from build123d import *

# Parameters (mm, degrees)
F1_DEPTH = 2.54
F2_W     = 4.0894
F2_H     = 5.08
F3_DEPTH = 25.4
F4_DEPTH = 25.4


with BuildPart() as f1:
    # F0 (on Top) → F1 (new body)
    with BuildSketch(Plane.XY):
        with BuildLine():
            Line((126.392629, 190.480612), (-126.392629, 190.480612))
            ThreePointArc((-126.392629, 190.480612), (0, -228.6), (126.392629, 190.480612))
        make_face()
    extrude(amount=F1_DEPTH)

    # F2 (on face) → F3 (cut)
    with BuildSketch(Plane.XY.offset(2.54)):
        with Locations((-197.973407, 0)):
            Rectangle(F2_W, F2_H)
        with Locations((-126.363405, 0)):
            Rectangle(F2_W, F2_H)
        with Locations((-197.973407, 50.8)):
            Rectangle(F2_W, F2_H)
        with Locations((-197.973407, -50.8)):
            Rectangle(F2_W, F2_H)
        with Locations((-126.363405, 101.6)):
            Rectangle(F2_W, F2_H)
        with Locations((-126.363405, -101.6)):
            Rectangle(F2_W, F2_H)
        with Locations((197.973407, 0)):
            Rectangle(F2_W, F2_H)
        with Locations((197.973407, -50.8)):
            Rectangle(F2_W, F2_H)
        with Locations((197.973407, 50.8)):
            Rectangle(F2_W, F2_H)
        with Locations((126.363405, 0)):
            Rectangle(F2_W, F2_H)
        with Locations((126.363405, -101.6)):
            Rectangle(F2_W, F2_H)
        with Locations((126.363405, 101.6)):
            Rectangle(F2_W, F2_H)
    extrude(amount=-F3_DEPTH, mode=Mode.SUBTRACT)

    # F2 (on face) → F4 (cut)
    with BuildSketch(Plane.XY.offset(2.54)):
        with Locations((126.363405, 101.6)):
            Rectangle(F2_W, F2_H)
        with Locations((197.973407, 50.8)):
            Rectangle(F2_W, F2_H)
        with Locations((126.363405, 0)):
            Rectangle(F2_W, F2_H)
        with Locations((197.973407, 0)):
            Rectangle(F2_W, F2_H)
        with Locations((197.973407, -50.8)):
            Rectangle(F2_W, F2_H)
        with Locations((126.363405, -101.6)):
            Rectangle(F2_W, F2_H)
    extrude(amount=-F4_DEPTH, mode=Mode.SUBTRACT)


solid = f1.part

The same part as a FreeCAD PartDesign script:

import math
import FreeCAD as App
import Part
import Sketcher
Q = App.Units.Quantity

doc = App.newDocument("Part")
body = doc.addObject("PartDesign::Body", "Body")

# Sketch on XY plane
sketch1 = doc.addObject("Sketcher::SketchObject", "Sketch")
body.addObject(sketch1)
sketch1.AttachmentSupport = (doc.XY_Plane, [""])
sketch1.MapMode = "FlatFace"
sketch1.addGeometry([
    Part.LineSegment(App.Vector(126, 190, 0), App.Vector(-126, 190, 0)),
    Part.ArcOfCircle(Part.Circle(App.Vector(0, 0, 0), App.Vector(0, 0, 1), 229), math.radians(124), math.radians(416)),
], False)
sketch1.addConstraint([
    Sketcher.Constraint("Coincident", 0, 1, 1, 2),
    Sketcher.Constraint("Coincident", 1, 1, 0, 2),
    Sketcher.Constraint("Horizontal", 0),
    Sketcher.Constraint("Coincident", 1, 3, -1, 1),
    Sketcher.Constraint("Radius", 1, Q("9 in")),
    Sketcher.Constraint("DistanceX", 0, 2, 0, 1, 252.785258),
])
pad1 = doc.addObject("PartDesign::Pad", "Pad")
body.addObject(pad1)
pad1.Profile = sketch1
pad1.Length = Q("0.1 in")

# Sketch on XY plane
sketch2 = doc.addObject("Sketcher::SketchObject", "Sketch001")
body.addObject(sketch2)
sketch2.AttachmentSupport = (doc.XY_Plane, [""])
sketch2.MapMode = "FlatFace"
sketch2.AttachmentOffset = App.Placement(App.Vector(0, 0, 0.1 * 25.4), App.Rotation())
sketch2.addGeometry([
    Part.LineSegment(App.Vector(-200, 2.5, 0), App.Vector(-200, -2.5, 0)),  # 0
    Part.LineSegment(App.Vector(-200, -2.5, 0), App.Vector(-195.9, -2.5, 0)),  # 1
    Part.LineSegment(App.Vector(-195.9, -2.5, 0), App.Vector(-195.9, 2.5, 0)),  # 2
    Part.LineSegment(App.Vector(-195.9, 2.5, 0), App.Vector(-200, 2.5, 0)),  # 3
    Part.LineSegment(App.Vector(-128.4, 2.5, 0), App.Vector(-128.4, -2.5, 0)),  # 4
    Part.LineSegment(App.Vector(-128.4, -2.5, 0), App.Vector(-124.3, -2.5, 0)),  # 5
    Part.LineSegment(App.Vector(-124.3, -2.5, 0), App.Vector(-124.3, 2.5, 0)),  # 6
    Part.LineSegment(App.Vector(-124.3, 2.5, 0), App.Vector(-128.4, 2.5, 0)),  # 7
    Part.LineSegment(App.Vector(-200, 53.3, 0), App.Vector(-200, 48.3, 0)),  # 8
    Part.LineSegment(App.Vector(-200, 48.3, 0), App.Vector(-195.9, 48.3, 0)),  # 9
    Part.LineSegment(App.Vector(-195.9, 48.3, 0), App.Vector(-195.9, 53.3, 0)),  # 10
    Part.LineSegment(App.Vector(-195.9, 53.3, 0), App.Vector(-200, 53.3, 0)),  # 11
    Part.LineSegment(App.Vector(-200, -48.3, 0), App.Vector(-200, -53.3, 0)),  # 12
    Part.LineSegment(App.Vector(-200, -53.3, 0), App.Vector(-195.9, -53.3, 0)),  # 13
    Part.LineSegment(App.Vector(-195.9, -53.3, 0), App.Vector(-195.9, -48.3, 0)),  # 14
    Part.LineSegment(App.Vector(-195.9, -48.3, 0), App.Vector(-200, -48.3, 0)),  # 15
    Part.LineSegment(App.Vector(-128.4, 104.1, 0), App.Vector(-128.4, 99.1, 0)),  # 16
    Part.LineSegment(App.Vector(-128.4, 99.1, 0), App.Vector(-124.3, 99.1, 0)),  # 17
    Part.LineSegment(App.Vector(-124.3, 99.1, 0), App.Vector(-124.3, 104.1, 0)),  # 18
    Part.LineSegment(App.Vector(-124.3, 104.1, 0), App.Vector(-128.4, 104.1, 0)),  # 19
    Part.LineSegment(App.Vector(-128.4, -99.1, 0), App.Vector(-128.4, -104.1, 0)),  # 20
    Part.LineSegment(App.Vector(-128.4, -104.1, 0), App.Vector(-124.3, -104.1, 0)),  # 21
    Part.LineSegment(App.Vector(-124.3, -104.1, 0), App.Vector(-124.3, -99.1, 0)),  # 22
    Part.LineSegment(App.Vector(-124.3, -99.1, 0), App.Vector(-128.4, -99.1, 0)),  # 23
    Part.LineSegment(App.Vector(195.9, 2.5, 0), App.Vector(195.9, -2.5, 0)),  # 24
    Part.LineSegment(App.Vector(195.9, -2.5, 0), App.Vector(200, -2.5, 0)),  # 25
    Part.LineSegment(App.Vector(200, -2.5, 0), App.Vector(200, 2.5, 0)),  # 26
    Part.LineSegment(App.Vector(200, 2.5, 0), App.Vector(195.9, 2.5, 0)),  # 27
    Part.LineSegment(App.Vector(195.9, -48.3, 0), App.Vector(195.9, -53.3, 0)),  # 28
    Part.LineSegment(App.Vector(195.9, -53.3, 0), App.Vector(200, -53.3, 0)),  # 29
    Part.LineSegment(App.Vector(200, -53.3, 0), App.Vector(200, -48.3, 0)),  # 30
    Part.LineSegment(App.Vector(200, -48.3, 0), App.Vector(195.9, -48.3, 0)),  # 31
    Part.LineSegment(App.Vector(195.9, 53.3, 0), App.Vector(195.9, 48.3, 0)),  # 32
    Part.LineSegment(App.Vector(195.9, 48.3, 0), App.Vector(200, 48.3, 0)),  # 33
    Part.LineSegment(App.Vector(200, 48.3, 0), App.Vector(200, 53.3, 0)),  # 34
    Part.LineSegment(App.Vector(200, 53.3, 0), App.Vector(195.9, 53.3, 0)),  # 35
    Part.LineSegment(App.Vector(124.3, 2.5, 0), App.Vector(124.3, -2.5, 0)),  # 36
    Part.LineSegment(App.Vector(124.3, -2.5, 0), App.Vector(128.4, -2.5, 0)),  # 37
    Part.LineSegment(App.Vector(128.4, -2.5, 0), App.Vector(128.4, 2.5, 0)),  # 38
    Part.LineSegment(App.Vector(128.4, 2.5, 0), App.Vector(124.3, 2.5, 0)),  # 39
    Part.LineSegment(App.Vector(124.3, -99.1, 0), App.Vector(124.3, -104.1, 0)),  # 40
    Part.LineSegment(App.Vector(124.3, -104.1, 0), App.Vector(128.4, -104.1, 0)),  # 41
    Part.LineSegment(App.Vector(128.4, -104.1, 0), App.Vector(128.4, -99.1, 0)),  # 42
    Part.LineSegment(App.Vector(128.4, -99.1, 0), App.Vector(124.3, -99.1, 0)),  # 43
    Part.LineSegment(App.Vector(124.3, 104.1, 0), App.Vector(124.3, 99.1, 0)),  # 44
    Part.LineSegment(App.Vector(124.3, 99.1, 0), App.Vector(128.4, 99.1, 0)),  # 45
    Part.LineSegment(App.Vector(128.4, 99.1, 0), App.Vector(128.4, 104.1, 0)),  # 46
    Part.LineSegment(App.Vector(128.4, 104.1, 0), App.Vector(124.3, 104.1, 0)),  # 47
], False)
sketch2.addConstraint([
    Sketcher.Constraint("Coincident", 0, 2, 1, 1),
    Sketcher.Constraint("Coincident", 1, 2, 2, 1),
    Sketcher.Constraint("Coincident", 2, 2, 3, 1),
    Sketcher.Constraint("Coincident", 3, 2, 0, 1),
    Sketcher.Constraint("Coincident", 4, 2, 5, 1),
    Sketcher.Constraint("Coincident", 5, 2, 6, 1),
    Sketcher.Constraint("Coincident", 6, 2, 7, 1),
    Sketcher.Constraint("Coincident", 7, 2, 4, 1),
    Sketcher.Constraint("Coincident", 8, 2, 9, 1),
    Sketcher.Constraint("Coincident", 9, 2, 10, 1),
    Sketcher.Constraint("Coincident", 10, 2, 11, 1),
    Sketcher.Constraint("Coincident", 11, 2, 8, 1),
    Sketcher.Constraint("Coincident", 12, 2, 13, 1),
    Sketcher.Constraint("Coincident", 13, 2, 14, 1),
    Sketcher.Constraint("Coincident", 14, 2, 15, 1),
    Sketcher.Constraint("Coincident", 15, 2, 12, 1),
    Sketcher.Constraint("Coincident", 16, 2, 17, 1),
    Sketcher.Constraint("Coincident", 17, 2, 18, 1),
    Sketcher.Constraint("Coincident", 18, 2, 19, 1),
    Sketcher.Constraint("Coincident", 19, 2, 16, 1),
    Sketcher.Constraint("Coincident", 20, 2, 21, 1),
    Sketcher.Constraint("Coincident", 21, 2, 22, 1),
    Sketcher.Constraint("Coincident", 22, 2, 23, 1),
    Sketcher.Constraint("Coincident", 23, 2, 20, 1),
    Sketcher.Constraint("Coincident", 24, 2, 25, 1),
    Sketcher.Constraint("Coincident", 25, 2, 26, 1),
    Sketcher.Constraint("Coincident", 26, 2, 27, 1),
    Sketcher.Constraint("Coincident", 27, 2, 24, 1),
    Sketcher.Constraint("Coincident", 28, 2, 29, 1),
    Sketcher.Constraint("Coincident", 29, 2, 30, 1),
    Sketcher.Constraint("Coincident", 30, 2, 31, 1),
    Sketcher.Constraint("Coincident", 31, 2, 28, 1),
    Sketcher.Constraint("Coincident", 32, 2, 33, 1),
    Sketcher.Constraint("Coincident", 33, 2, 34, 1),
    Sketcher.Constraint("Coincident", 34, 2, 35, 1),
    Sketcher.Constraint("Coincident", 35, 2, 32, 1),
    Sketcher.Constraint("Coincident", 36, 2, 37, 1),
    Sketcher.Constraint("Coincident", 37, 2, 38, 1),
    Sketcher.Constraint("Coincident", 38, 2, 39, 1),
    Sketcher.Constraint("Coincident", 39, 2, 36, 1),
    Sketcher.Constraint("Coincident", 40, 2, 41, 1),
    Sketcher.Constraint("Coincident", 41, 2, 42, 1),
    Sketcher.Constraint("Coincident", 42, 2, 43, 1),
    Sketcher.Constraint("Coincident", 43, 2, 40, 1),
    Sketcher.Constraint("Coincident", 44, 2, 45, 1),
    Sketcher.Constraint("Coincident", 45, 2, 46, 1),
    Sketcher.Constraint("Coincident", 46, 2, 47, 1),
    Sketcher.Constraint("Coincident", 47, 2, 44, 1),
    Sketcher.Constraint("Vertical", 0),
    Sketcher.Constraint("Horizontal", 1),
    Sketcher.Constraint("Vertical", 2),
    Sketcher.Constraint("Horizontal", 3),
    Sketcher.Constraint("Vertical", 4),
    Sketcher.Constraint("Horizontal", 5),
    Sketcher.Constraint("Vertical", 6),
    Sketcher.Constraint("Horizontal", 7),
    Sketcher.Constraint("Vertical", 8),
    Sketcher.Constraint("Horizontal", 9),
    Sketcher.Constraint("Vertical", 10),
    Sketcher.Constraint("Horizontal", 11),
    Sketcher.Constraint("Vertical", 12),
    Sketcher.Constraint("Horizontal", 13),
    Sketcher.Constraint("Vertical", 14),
    Sketcher.Constraint("Horizontal", 15),
    Sketcher.Constraint("Vertical", 16),
    Sketcher.Constraint("Horizontal", 17),
    Sketcher.Constraint("Vertical", 18),
    Sketcher.Constraint("Horizontal", 19),
    Sketcher.Constraint("Vertical", 20),
    Sketcher.Constraint("Horizontal", 21),
    Sketcher.Constraint("Vertical", 22),
    Sketcher.Constraint("Horizontal", 23),
    Sketcher.Constraint("Vertical", 24),
    Sketcher.Constraint("Horizontal", 25),
    Sketcher.Constraint("Vertical", 26),
    Sketcher.Constraint("Horizontal", 27),
    Sketcher.Constraint("Vertical", 28),
    Sketcher.Constraint("Horizontal", 29),
    Sketcher.Constraint("Vertical", 30),
    Sketcher.Constraint("Horizontal", 31),
    Sketcher.Constraint("Vertical", 32),
    Sketcher.Constraint("Horizontal", 33),
    Sketcher.Constraint("Vertical", 34),
    Sketcher.Constraint("Horizontal", 35),
    Sketcher.Constraint("Vertical", 36),
    Sketcher.Constraint("Horizontal", 37),
    Sketcher.Constraint("Vertical", 38),
    Sketcher.Constraint("Horizontal", 39),
    Sketcher.Constraint("Vertical", 40),
    Sketcher.Constraint("Horizontal", 41),
    Sketcher.Constraint("Vertical", 42),
    Sketcher.Constraint("Horizontal", 43),
    Sketcher.Constraint("Vertical", 44),
    Sketcher.Constraint("Horizontal", 45),
    Sketcher.Constraint("Vertical", 46),
    Sketcher.Constraint("Horizontal", 47),
    Sketcher.Constraint("Symmetric", 2, 2, 24, 2, -1, 1),
    Sketcher.Constraint("Symmetric", 0, 2, 26, 2, -1, 1),
    Sketcher.Constraint("Symmetric", 10, 2, 28, 2, -1, 1),
    Sketcher.Constraint("Symmetric", 8, 2, 30, 2, -1, 1),
    Sketcher.Constraint("Symmetric", 14, 2, 32, 2, -1, 1),
    Sketcher.Constraint("Symmetric", 12, 2, 34, 2, -1, 1),
    Sketcher.Constraint("Symmetric", 6, 2, 36, 2, -1, 1),
    Sketcher.Constraint("Symmetric", 4, 2, 38, 2, -1, 1),
    Sketcher.Constraint("Symmetric", 18, 2, 40, 2, -1, 1),
    Sketcher.Constraint("Symmetric", 16, 2, 42, 2, -1, 1),
    Sketcher.Constraint("Symmetric", 22, 2, 44, 2, -1, 1),
    Sketcher.Constraint("Symmetric", 20, 2, 46, 2, -1, 1),
    Sketcher.Constraint("Symmetric", 13, 2, 28, 2, -2),
    Sketcher.Constraint("Symmetric", 15, 2, 30, 2, -2),
    Sketcher.Constraint("Symmetric", 21, 2, 40, 2, -2),
    Sketcher.Constraint("Symmetric", 23, 2, 42, 2, -2),
    Sketcher.Constraint("Horizontal", 1, 2, 4, 2),
    Sketcher.Constraint("Horizontal", 3, 2, 6, 2),
    Sketcher.Constraint("Horizontal", 5, 2, 24, 2),
    Sketcher.Constraint("Vertical", 3, 2, 8, 2),
    Sketcher.Constraint("Vertical", 2, 2, 9, 2),
    Sketcher.Constraint("Vertical", 7, 2, 16, 2),
    Sketcher.Constraint("Vertical", 6, 2, 17, 2),
    Sketcher.Constraint("Equal", 3, 5),
    Sketcher.Constraint("Equal", 6, 8),
    Sketcher.Constraint("Equal", 14, 16),
    Sketcher.Constraint("DistanceY", 0, 2, 0, 1, Q("0.2 in")),
    Sketcher.Constraint("DistanceY", 0, 2, 8, 2, Q("2 in")),
    Sketcher.Constraint("DistanceY", 9, 2, 16, 2, Q("2 in")),
    Sketcher.Constraint("DistanceX", 1, 1, 1, 2, Q("0.161 in")),
    Sketcher.Constraint("DistanceX", 1, 2, 4, 2, 67.520602),
    Sketcher.Constraint("DistanceX", 5, 2, 24, 2, 320.247412),
])
pocket1 = doc.addObject("PartDesign::Pocket", "Pocket")
body.addObject(pocket1)
pocket1.Profile = sketch2
pocket1.Length = Q("1 in")

# Sketch on XY plane
sketch3 = doc.addObject("Sketcher::SketchObject", "Sketch002")
body.addObject(sketch3)
sketch3.AttachmentSupport = (doc.XY_Plane, [""])
sketch3.MapMode = "FlatFace"
sketch3.AttachmentOffset = App.Placement(App.Vector(0, 0, 0.1 * 25.4), App.Rotation())
sketch3.addGeometry([
    Part.LineSegment(App.Vector(124.3, 104.1, 0), App.Vector(124.3, 99.1, 0)),  # 0
    Part.LineSegment(App.Vector(124.3, 99.1, 0), App.Vector(128.4, 99.1, 0)),  # 1
    Part.LineSegment(App.Vector(128.4, 99.1, 0), App.Vector(128.4, 104.1, 0)),  # 2
    Part.LineSegment(App.Vector(128.4, 104.1, 0), App.Vector(124.3, 104.1, 0)),  # 3
    Part.LineSegment(App.Vector(195.9, 53.3, 0), App.Vector(195.9, 48.3, 0)),  # 4
    Part.LineSegment(App.Vector(195.9, 48.3, 0), App.Vector(200, 48.3, 0)),  # 5
    Part.LineSegment(App.Vector(200, 48.3, 0), App.Vector(200, 53.3, 0)),  # 6
    Part.LineSegment(App.Vector(200, 53.3, 0), App.Vector(195.9, 53.3, 0)),  # 7
    Part.LineSegment(App.Vector(124.3, 2.5, 0), App.Vector(124.3, -2.5, 0)),  # 8
    Part.LineSegment(App.Vector(124.3, -2.5, 0), App.Vector(128.4, -2.5, 0)),  # 9
    Part.LineSegment(App.Vector(128.4, -2.5, 0), App.Vector(128.4, 2.5, 0)),  # 10
    Part.LineSegment(App.Vector(128.4, 2.5, 0), App.Vector(124.3, 2.5, 0)),  # 11
    Part.LineSegment(App.Vector(195.9, 2.5, 0), App.Vector(195.9, -2.5, 0)),  # 12
    Part.LineSegment(App.Vector(195.9, -2.5, 0), App.Vector(200, -2.5, 0)),  # 13
    Part.LineSegment(App.Vector(200, -2.5, 0), App.Vector(200, 2.5, 0)),  # 14
    Part.LineSegment(App.Vector(200, 2.5, 0), App.Vector(195.9, 2.5, 0)),  # 15
    Part.LineSegment(App.Vector(195.9, -48.3, 0), App.Vector(195.9, -53.3, 0)),  # 16
    Part.LineSegment(App.Vector(195.9, -53.3, 0), App.Vector(200, -53.3, 0)),  # 17
    Part.LineSegment(App.Vector(200, -53.3, 0), App.Vector(200, -48.3, 0)),  # 18
    Part.LineSegment(App.Vector(200, -48.3, 0), App.Vector(195.9, -48.3, 0)),  # 19
    Part.LineSegment(App.Vector(124.3, -99.1, 0), App.Vector(124.3, -104.1, 0)),  # 20
    Part.LineSegment(App.Vector(124.3, -104.1, 0), App.Vector(128.4, -104.1, 0)),  # 21
    Part.LineSegment(App.Vector(128.4, -104.1, 0), App.Vector(128.4, -99.1, 0)),  # 22
    Part.LineSegment(App.Vector(128.4, -99.1, 0), App.Vector(124.3, -99.1, 0)),  # 23
], False)
sketch3.addConstraint([
    Sketcher.Constraint("Coincident", 0, 2, 1, 1),
    Sketcher.Constraint("Coincident", 1, 2, 2, 1),
    Sketcher.Constraint("Coincident", 2, 2, 3, 1),
    Sketcher.Constraint("Coincident", 3, 2, 0, 1),
    Sketcher.Constraint("Coincident", 4, 2, 5, 1),
    Sketcher.Constraint("Coincident", 5, 2, 6, 1),
    Sketcher.Constraint("Coincident", 6, 2, 7, 1),
    Sketcher.Constraint("Coincident", 7, 2, 4, 1),
    Sketcher.Constraint("Coincident", 8, 2, 9, 1),
    Sketcher.Constraint("Coincident", 9, 2, 10, 1),
    Sketcher.Constraint("Coincident", 10, 2, 11, 1),
    Sketcher.Constraint("Coincident", 11, 2, 8, 1),
    Sketcher.Constraint("Coincident", 12, 2, 13, 1),
    Sketcher.Constraint("Coincident", 13, 2, 14, 1),
    Sketcher.Constraint("Coincident", 14, 2, 15, 1),
    Sketcher.Constraint("Coincident", 15, 2, 12, 1),
    Sketcher.Constraint("Coincident", 16, 2, 17, 1),
    Sketcher.Constraint("Coincident", 17, 2, 18, 1),
    Sketcher.Constraint("Coincident", 18, 2, 19, 1),
    Sketcher.Constraint("Coincident", 19, 2, 16, 1),
    Sketcher.Constraint("Coincident", 20, 2, 21, 1),
    Sketcher.Constraint("Coincident", 21, 2, 22, 1),
    Sketcher.Constraint("Coincident", 22, 2, 23, 1),
    Sketcher.Constraint("Coincident", 23, 2, 20, 1),
    Sketcher.Constraint("Vertical", 0),
    Sketcher.Constraint("Horizontal", 1),
    Sketcher.Constraint("Vertical", 2),
    Sketcher.Constraint("Horizontal", 3),
    Sketcher.Constraint("Vertical", 4),
    Sketcher.Constraint("Horizontal", 5),
    Sketcher.Constraint("Vertical", 6),
    Sketcher.Constraint("Horizontal", 7),
    Sketcher.Constraint("Vertical", 8),
    Sketcher.Constraint("Horizontal", 9),
    Sketcher.Constraint("Vertical", 10),
    Sketcher.Constraint("Horizontal", 11),
    Sketcher.Constraint("Vertical", 12),
    Sketcher.Constraint("Horizontal", 13),
    Sketcher.Constraint("Vertical", 14),
    Sketcher.Constraint("Horizontal", 15),
    Sketcher.Constraint("Vertical", 16),
    Sketcher.Constraint("Horizontal", 17),
    Sketcher.Constraint("Vertical", 18),
    Sketcher.Constraint("Horizontal", 19),
    Sketcher.Constraint("Vertical", 20),
    Sketcher.Constraint("Horizontal", 21),
    Sketcher.Constraint("Vertical", 22),
    Sketcher.Constraint("Horizontal", 23),
    Sketcher.Constraint("Symmetric", 7, 2, 16, 2, -1),
    Sketcher.Constraint("Symmetric", 5, 2, 18, 2, -1),
    Sketcher.Constraint("Symmetric", 3, 2, 20, 2, -1),
    Sketcher.Constraint("Symmetric", 1, 2, 22, 2, -1),
    Sketcher.Constraint("Horizontal", 9, 2, 12, 2),
    Sketcher.Constraint("Horizontal", 11, 2, 14, 2),
    Sketcher.Constraint("Vertical", 3, 2, 8, 2),
    Sketcher.Constraint("Vertical", 2, 2, 9, 2),
    Sketcher.Constraint("Vertical", 7, 2, 12, 2),
    Sketcher.Constraint("Vertical", 6, 2, 13, 2),
    Sketcher.Constraint("Equal", 3, 5),
    Sketcher.Constraint("Equal", 2, 4),
    Sketcher.Constraint("Equal", 6, 8),
    Sketcher.Constraint("DistanceY", 0, 2, 0, 1, Q("0.2 in")),
    Sketcher.Constraint("DistanceY", 4, 2, 1, 2, Q("2 in")),
    Sketcher.Constraint("DistanceY", 8, 2, 4, 2, Q("2 in")),
    Sketcher.Constraint("DistanceY", 16, 2, 12, 2, Q("2 in")),
    Sketcher.Constraint("DistanceX", 1, 1, 1, 2, Q("0.161 in")),
    Sketcher.Constraint("DistanceX", 1, 2, 4, 2, 67.520602),
    Sketcher.Constraint("DistanceX", -1, 1, 0, 2, 124.318705),
])
pocket2 = doc.addObject("PartDesign::Pocket", "Pocket001")
body.addObject(pocket2)
pocket2.Profile = sketch3
pocket2.Length = Q("1 in")

doc.recompute()
